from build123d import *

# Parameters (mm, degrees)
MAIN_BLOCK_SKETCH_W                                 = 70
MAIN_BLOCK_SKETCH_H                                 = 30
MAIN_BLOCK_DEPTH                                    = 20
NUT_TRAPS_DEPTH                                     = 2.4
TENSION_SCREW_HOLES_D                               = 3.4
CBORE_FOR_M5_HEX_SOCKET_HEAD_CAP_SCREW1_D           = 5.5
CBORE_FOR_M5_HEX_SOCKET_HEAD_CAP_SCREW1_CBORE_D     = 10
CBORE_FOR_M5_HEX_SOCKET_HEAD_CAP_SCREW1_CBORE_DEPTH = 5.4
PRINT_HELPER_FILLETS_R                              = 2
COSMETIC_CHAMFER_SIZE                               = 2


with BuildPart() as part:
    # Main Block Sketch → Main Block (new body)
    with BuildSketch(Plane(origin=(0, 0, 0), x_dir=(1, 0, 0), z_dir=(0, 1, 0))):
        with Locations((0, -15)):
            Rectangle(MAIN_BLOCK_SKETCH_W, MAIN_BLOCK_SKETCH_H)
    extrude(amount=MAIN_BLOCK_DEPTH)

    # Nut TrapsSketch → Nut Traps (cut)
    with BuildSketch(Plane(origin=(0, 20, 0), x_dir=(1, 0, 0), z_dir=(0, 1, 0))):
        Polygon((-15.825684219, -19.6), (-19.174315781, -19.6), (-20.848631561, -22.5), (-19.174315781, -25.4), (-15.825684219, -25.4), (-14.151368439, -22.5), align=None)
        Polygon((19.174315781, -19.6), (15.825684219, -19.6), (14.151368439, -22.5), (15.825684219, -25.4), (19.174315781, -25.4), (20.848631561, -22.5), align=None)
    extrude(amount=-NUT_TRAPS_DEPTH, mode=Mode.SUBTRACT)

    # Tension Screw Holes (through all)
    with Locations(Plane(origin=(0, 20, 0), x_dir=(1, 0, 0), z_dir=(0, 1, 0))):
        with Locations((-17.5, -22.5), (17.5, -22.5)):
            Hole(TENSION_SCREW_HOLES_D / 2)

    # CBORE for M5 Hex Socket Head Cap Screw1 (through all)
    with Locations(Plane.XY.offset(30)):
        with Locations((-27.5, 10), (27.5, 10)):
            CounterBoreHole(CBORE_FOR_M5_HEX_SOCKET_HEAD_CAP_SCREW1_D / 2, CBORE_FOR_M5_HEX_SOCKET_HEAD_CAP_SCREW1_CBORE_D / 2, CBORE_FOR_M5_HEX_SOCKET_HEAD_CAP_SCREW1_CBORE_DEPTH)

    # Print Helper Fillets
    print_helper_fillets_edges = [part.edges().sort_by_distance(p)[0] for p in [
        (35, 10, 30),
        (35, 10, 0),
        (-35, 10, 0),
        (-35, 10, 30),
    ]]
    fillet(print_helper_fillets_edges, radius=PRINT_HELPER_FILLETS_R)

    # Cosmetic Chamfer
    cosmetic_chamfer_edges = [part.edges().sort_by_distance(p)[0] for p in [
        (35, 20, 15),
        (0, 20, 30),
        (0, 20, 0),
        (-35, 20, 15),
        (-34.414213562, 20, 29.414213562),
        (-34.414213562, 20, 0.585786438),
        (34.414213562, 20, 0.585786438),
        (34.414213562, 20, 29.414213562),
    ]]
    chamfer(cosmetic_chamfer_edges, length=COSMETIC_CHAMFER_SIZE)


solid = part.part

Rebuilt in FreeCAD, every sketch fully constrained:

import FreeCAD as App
import Part
import Sketcher
from FreeCAD import Vector
Q = App.Units.Quantity


def edges_at(feature, points):
    """Names of the edges that pass closest to the given points."""
    edges = feature.Shape.Edges
    near = lambda p: min(range(len(edges)), key=lambda i: edges[i].distToShape(Part.Vertex(*p))[0])
    return sorted({f"Edge{near(p) + 1}" for p in points})

doc = App.newDocument("Part")
params = doc.addObject("Spreadsheet::Sheet", "Params")
for row, (alias, value) in enumerate([
    ("sketch1_width", "70 mm"),
    ("sketch1_height", "30 mm"),
    ("pad1_length", "20 mm"),
    ("pocket1_length", "2.4 mm"),
    ("sketch3_diameter", "3.4 mm"),
    ("hole_diameter", "3.4 mm"),
    ("sketch4_diameter", "5.5 mm"),
    ("hole2_diameter", "5.5 mm"),
    ("hole2_cbore_diameter", "10 mm"),
    ("hole2_cbore_depth", "5.4 mm"),
    ("fillet_radius", "2 mm"),
    ("chamfer_size", "2 mm"),
], start=1):
    params.set(f"A{row}", alias)
    params.set(f"B{row}", "=" + value)
    params.setAlias(f"B{row}", alias)

body = doc.addObject("PartDesign::Body", "Body")

# Sketch on XZ plane
sketch1 = body.newObject("Sketcher::SketchObject", "Sketch")
sketch1.AttachmentSupport = (doc.getObject("XZ_Plane"), [""])
sketch1.MapMode = "FlatFace"
sketch1.addGeometry([
    Part.LineSegment(Vector(-35, 0, 0), Vector(-35, 30, 0)),
    Part.LineSegment(Vector(-35, 30, 0), Vector(35, 30, 0)),
    Part.LineSegment(Vector(35, 30, 0), Vector(35, 0, 0)),
    Part.LineSegment(Vector(35, 0, 0), Vector(-35, 0, 0)),
], False)
sketch1.addConstraint([
    Sketcher.Constraint("Coincident", 0, 2, 1, 1),
    Sketcher.Constraint("Coincident", 1, 2, 2, 1),
    Sketcher.Constraint("Coincident", 2, 2, 3, 1),
    Sketcher.Constraint("Coincident", 3, 2, 0, 1),
    Sketcher.Constraint("Vertical", 0),
    Sketcher.Constraint("Horizontal", 1),
    Sketcher.Constraint("Vertical", 2),
    Sketcher.Constraint("Horizontal", 3),
    Sketcher.Constraint("Symmetric", 2, 2, 3, 2, -1, 1),
    Sketcher.Constraint("DistanceX", 1, 1, 1, 2, Q("70 mm")),
    Sketcher.Constraint("DistanceY", 0, 1, 0, 2, Q("30 mm")),
])
sketch1.setExpression("Constraints[9]", "Params.sketch1_width")
sketch1.setExpression("Constraints[10]", "Params.sketch1_height")
pad1 = body.newObject("PartDesign::Pad", "Pad")
pad1.Profile = sketch1
pad1.setExpression("Length", "Params.pad1_length")
pad1.Reversed = True

# Sketch on XZ plane
sketch2 = body.newObject("Sketcher::SketchObject", "Sketch001")
sketch2.AttachmentSupport = (doc.getObject("XZ_Plane"), [""])
sketch2.MapMode = "FlatFace"
sketch2.AttachmentOffset = App.Placement(Vector(0, 0, -20), App.Rotation())
sketch2.addGeometry([
    Part.LineSegment(Vector(-15.825684, 19.6, 0), Vector(-19.174316, 19.6, 0)),  # 0
    Part.LineSegment(Vector(-19.174316, 19.6, 0), Vector(-20.848632, 22.5, 0)),  # 1
    Part.LineSegment(Vector(-20.848632, 22.5, 0), Vector(-19.174316, 25.4, 0)),  # 2
    Part.LineSegment(Vector(-19.174316, 25.4, 0), Vector(-15.825684, 25.4, 0)),  # 3
    Part.LineSegment(Vector(-15.825684, 25.4, 0), Vector(-14.151368, 22.5, 0)),  # 4
    Part.LineSegment(Vector(-14.151368, 22.5, 0), Vector(-15.825684, 19.6, 0)),  # 5
    Part.LineSegment(Vector(19.174316, 19.6, 0), Vector(15.825684, 19.6, 0)),  # 6
    Part.LineSegment(Vector(15.825684, 19.6, 0), Vector(14.151368, 22.5, 0)),  # 7
    Part.LineSegment(Vector(14.151368, 22.5, 0), Vector(15.825684, 25.4, 0)),  # 8
    Part.LineSegment(Vector(15.825684, 25.4, 0), Vector(19.174316, 25.4, 0)),  # 9
    Part.LineSegment(Vector(19.174316, 25.4, 0), Vector(20.848632, 22.5, 0)),  # 10
    Part.LineSegment(Vector(20.848632, 22.5, 0), Vector(19.174316, 19.6, 0)),  # 11
], False)
sketch2.addConstraint([
    Sketcher.Constraint("Coincident", 0, 2, 1, 1),
    Sketcher.Constraint("Coincident", 1, 2, 2, 1),
    Sketcher.Constraint("Coincident", 2, 2, 3, 1),
    Sketcher.Constraint("Coincident", 3, 2, 4, 1),
    Sketcher.Constraint("Coincident", 4, 2, 5, 1),
    Sketcher.Constraint("Coincident", 5, 2, 0, 1),
    Sketcher.Constraint("Coincident", 6, 2, 7, 1),
    Sketcher.Constraint("Coincident", 7, 2, 8, 1),
    Sketcher.Constraint("Coincident", 8, 2, 9, 1),
    Sketcher.Constraint("Coincident", 9, 2, 10, 1),
    Sketcher.Constraint("Coincident", 10, 2, 11, 1),
    Sketcher.Constraint("Coincident", 11, 2, 6, 1),
    Sketcher.Constraint("Horizontal", 0),
    Sketcher.Constraint("Horizontal", 3),
    Sketcher.Constraint("Horizontal", 6),
    Sketcher.Constraint("Horizontal", 9),
    Sketcher.Constraint("Symmetric", 5, 2, 6, 2, -2),
    Sketcher.Constraint("Symmetric", 4, 2, 7, 2, -2),
    Sketcher.Constraint("Symmetric", 3, 2, 8, 2, -2),
    Sketcher.Constraint("Symmetric", 1, 2, 10, 2, -2),
    Sketcher.Constraint("Parallel", 1, 4),
    Sketcher.Constraint("Parallel", 2, 5),
    Sketcher.Constraint("Parallel", 4, 7),
    Sketcher.Constraint("Parallel", 7, 10),
    Sketcher.Constraint("Parallel", 8, 11),
    Sketcher.Constraint("Horizontal", 1, 2, 4, 2),
    Sketcher.Constraint("Vertical", 0, 2, 2, 2),
    Sketcher.Constraint("Angle", 1, Q("120 deg")),
    Sketcher.Constraint("DistanceX", 0, 2, 6, 2, Q("35 mm")),
    Sketcher.Constraint("DistanceY", -1, 1, 0, 2, Q("19.6 mm")),
    Sketcher.Constraint("DistanceY", -1, 1, 1, 2, Q("22.5 mm")),
    Sketcher.Constraint("DistanceX", 0, 2, 0, 1, Q("3.348632 mm")),
])
pocket1 = body.newObject("PartDesign::Pocket", "Pocket")
pocket1.Profile = sketch2
pocket1.setExpression("Length", "Params.pocket1_length")
pocket1.Reversed = True

# Sketch on XZ plane
sketch3 = body.newObject("Sketcher::SketchObject", "Sketch002")
sketch3.AttachmentSupport = (doc.getObject("XZ_Plane"), [""])
sketch3.MapMode = "FlatFace"
sketch3.AttachmentOffset = App.Placement(Vector(0, 0, -20), App.Rotation())
sketch3.addGeometry([
    Part.Circle(Vector(-17.5, 22.5, 0), Vector(0, 0, 1), 1.7),
    Part.Circle(Vector(17.5, 22.5, 0), Vector(0, 0, 1), 1.7),
], False)
sketch3.addConstraint([
    Sketcher.Constraint("Equal", 0, 1),
    Sketcher.Constraint("Symmetric", 0, 3, 1, 3, -2),
    Sketcher.Constraint("Diameter", 0, Q("3.4 mm")),
    Sketcher.Constraint("DistanceX", 0, 3, 1, 3, Q("35 mm")),
    Sketcher.Constraint("DistanceY", -1, 1, 0, 3, Q("22.5 mm")),
])
sketch3.setExpression("Constraints[2]", "Params.sketch3_diameter")
doc.recompute()
hole = body.newObject("PartDesign::Hole", "Hole")
hole.Profile = sketch3
hole.ThreadType = "None"
hole.setExpression("Diameter", "Params.hole_diameter")
hole.DepthType = "ThroughAll"
hole.Reversed = True

# Sketch on XY plane
sketch4 = body.newObject("Sketcher::SketchObject", "Sketch003")
sketch4.AttachmentSupport = (doc.getObject("XY_Plane"), [""])
sketch4.MapMode = "FlatFace"
sketch4.AttachmentOffset = App.Placement(Vector(0, 0, 30), App.Rotation())
sketch4.addGeometry([
    Part.Circle(Vector(-27.5, 10, 0), Vector(0, 0, 1), 2.75),
    Part.Circle(Vector(27.5, 10, 0), Vector(0, 0, 1), 2.75),
], False)
sketch4.addConstraint([
    Sketcher.Constraint("Equal", 0, 1),
    Sketcher.Constraint("Symmetric", 0, 3, 1, 3, -2),
    Sketcher.Constraint("Diameter", 0, Q("5.5 mm")),
    Sketcher.Constraint("DistanceY", -1, 1, 0, 3, Q("10 mm")),
    Sketcher.Constraint("DistanceX", 0, 3, 1, 3, Q("55 mm")),
])
sketch4.setExpression("Constraints[2]", "Params.sketch4_diameter")
doc.recompute()
hole2 = body.newObject("PartDesign::Hole", "Hole001")
hole2.Profile = sketch4
hole2.ThreadType = "None"
hole2.setExpression("Diameter", "Params.hole2_diameter")
hole2.DepthType = "ThroughAll"
hole2.HoleCutType = "Counterbore"
hole2.setExpression("HoleCutDiameter", "Params.hole2_cbore_diameter")
hole2.setExpression("HoleCutDepth", "Params.hole2_cbore_depth")
doc.recompute()

fillet = body.newObject("PartDesign::Fillet", "Fillet")
fillet.Base = (hole2, edges_at(hole2, [
    (35, 10, 30),
    (35, 10, 0),
    (-35, 10, 0),
    (-35, 10, 30),
]))
fillet.setExpression("Radius", "Params.fillet_radius")
doc.recompute()

chamfer = body.newObject("PartDesign::Chamfer", "Chamfer")
chamfer.Base = (fillet, edges_at(fillet, [
    (35, 20, 15),
    (0, 20, 30),
    (0, 20, 0),
    (-35, 20, 15),
    (-34.414, 20, 29.414),
    (-34.414, 20, 0.586),
    (34.414, 20, 0.586),
    (34.414, 20, 29.414),
]))
chamfer.setExpression("Size", "Params.chamfer_size")

doc.recompute()
